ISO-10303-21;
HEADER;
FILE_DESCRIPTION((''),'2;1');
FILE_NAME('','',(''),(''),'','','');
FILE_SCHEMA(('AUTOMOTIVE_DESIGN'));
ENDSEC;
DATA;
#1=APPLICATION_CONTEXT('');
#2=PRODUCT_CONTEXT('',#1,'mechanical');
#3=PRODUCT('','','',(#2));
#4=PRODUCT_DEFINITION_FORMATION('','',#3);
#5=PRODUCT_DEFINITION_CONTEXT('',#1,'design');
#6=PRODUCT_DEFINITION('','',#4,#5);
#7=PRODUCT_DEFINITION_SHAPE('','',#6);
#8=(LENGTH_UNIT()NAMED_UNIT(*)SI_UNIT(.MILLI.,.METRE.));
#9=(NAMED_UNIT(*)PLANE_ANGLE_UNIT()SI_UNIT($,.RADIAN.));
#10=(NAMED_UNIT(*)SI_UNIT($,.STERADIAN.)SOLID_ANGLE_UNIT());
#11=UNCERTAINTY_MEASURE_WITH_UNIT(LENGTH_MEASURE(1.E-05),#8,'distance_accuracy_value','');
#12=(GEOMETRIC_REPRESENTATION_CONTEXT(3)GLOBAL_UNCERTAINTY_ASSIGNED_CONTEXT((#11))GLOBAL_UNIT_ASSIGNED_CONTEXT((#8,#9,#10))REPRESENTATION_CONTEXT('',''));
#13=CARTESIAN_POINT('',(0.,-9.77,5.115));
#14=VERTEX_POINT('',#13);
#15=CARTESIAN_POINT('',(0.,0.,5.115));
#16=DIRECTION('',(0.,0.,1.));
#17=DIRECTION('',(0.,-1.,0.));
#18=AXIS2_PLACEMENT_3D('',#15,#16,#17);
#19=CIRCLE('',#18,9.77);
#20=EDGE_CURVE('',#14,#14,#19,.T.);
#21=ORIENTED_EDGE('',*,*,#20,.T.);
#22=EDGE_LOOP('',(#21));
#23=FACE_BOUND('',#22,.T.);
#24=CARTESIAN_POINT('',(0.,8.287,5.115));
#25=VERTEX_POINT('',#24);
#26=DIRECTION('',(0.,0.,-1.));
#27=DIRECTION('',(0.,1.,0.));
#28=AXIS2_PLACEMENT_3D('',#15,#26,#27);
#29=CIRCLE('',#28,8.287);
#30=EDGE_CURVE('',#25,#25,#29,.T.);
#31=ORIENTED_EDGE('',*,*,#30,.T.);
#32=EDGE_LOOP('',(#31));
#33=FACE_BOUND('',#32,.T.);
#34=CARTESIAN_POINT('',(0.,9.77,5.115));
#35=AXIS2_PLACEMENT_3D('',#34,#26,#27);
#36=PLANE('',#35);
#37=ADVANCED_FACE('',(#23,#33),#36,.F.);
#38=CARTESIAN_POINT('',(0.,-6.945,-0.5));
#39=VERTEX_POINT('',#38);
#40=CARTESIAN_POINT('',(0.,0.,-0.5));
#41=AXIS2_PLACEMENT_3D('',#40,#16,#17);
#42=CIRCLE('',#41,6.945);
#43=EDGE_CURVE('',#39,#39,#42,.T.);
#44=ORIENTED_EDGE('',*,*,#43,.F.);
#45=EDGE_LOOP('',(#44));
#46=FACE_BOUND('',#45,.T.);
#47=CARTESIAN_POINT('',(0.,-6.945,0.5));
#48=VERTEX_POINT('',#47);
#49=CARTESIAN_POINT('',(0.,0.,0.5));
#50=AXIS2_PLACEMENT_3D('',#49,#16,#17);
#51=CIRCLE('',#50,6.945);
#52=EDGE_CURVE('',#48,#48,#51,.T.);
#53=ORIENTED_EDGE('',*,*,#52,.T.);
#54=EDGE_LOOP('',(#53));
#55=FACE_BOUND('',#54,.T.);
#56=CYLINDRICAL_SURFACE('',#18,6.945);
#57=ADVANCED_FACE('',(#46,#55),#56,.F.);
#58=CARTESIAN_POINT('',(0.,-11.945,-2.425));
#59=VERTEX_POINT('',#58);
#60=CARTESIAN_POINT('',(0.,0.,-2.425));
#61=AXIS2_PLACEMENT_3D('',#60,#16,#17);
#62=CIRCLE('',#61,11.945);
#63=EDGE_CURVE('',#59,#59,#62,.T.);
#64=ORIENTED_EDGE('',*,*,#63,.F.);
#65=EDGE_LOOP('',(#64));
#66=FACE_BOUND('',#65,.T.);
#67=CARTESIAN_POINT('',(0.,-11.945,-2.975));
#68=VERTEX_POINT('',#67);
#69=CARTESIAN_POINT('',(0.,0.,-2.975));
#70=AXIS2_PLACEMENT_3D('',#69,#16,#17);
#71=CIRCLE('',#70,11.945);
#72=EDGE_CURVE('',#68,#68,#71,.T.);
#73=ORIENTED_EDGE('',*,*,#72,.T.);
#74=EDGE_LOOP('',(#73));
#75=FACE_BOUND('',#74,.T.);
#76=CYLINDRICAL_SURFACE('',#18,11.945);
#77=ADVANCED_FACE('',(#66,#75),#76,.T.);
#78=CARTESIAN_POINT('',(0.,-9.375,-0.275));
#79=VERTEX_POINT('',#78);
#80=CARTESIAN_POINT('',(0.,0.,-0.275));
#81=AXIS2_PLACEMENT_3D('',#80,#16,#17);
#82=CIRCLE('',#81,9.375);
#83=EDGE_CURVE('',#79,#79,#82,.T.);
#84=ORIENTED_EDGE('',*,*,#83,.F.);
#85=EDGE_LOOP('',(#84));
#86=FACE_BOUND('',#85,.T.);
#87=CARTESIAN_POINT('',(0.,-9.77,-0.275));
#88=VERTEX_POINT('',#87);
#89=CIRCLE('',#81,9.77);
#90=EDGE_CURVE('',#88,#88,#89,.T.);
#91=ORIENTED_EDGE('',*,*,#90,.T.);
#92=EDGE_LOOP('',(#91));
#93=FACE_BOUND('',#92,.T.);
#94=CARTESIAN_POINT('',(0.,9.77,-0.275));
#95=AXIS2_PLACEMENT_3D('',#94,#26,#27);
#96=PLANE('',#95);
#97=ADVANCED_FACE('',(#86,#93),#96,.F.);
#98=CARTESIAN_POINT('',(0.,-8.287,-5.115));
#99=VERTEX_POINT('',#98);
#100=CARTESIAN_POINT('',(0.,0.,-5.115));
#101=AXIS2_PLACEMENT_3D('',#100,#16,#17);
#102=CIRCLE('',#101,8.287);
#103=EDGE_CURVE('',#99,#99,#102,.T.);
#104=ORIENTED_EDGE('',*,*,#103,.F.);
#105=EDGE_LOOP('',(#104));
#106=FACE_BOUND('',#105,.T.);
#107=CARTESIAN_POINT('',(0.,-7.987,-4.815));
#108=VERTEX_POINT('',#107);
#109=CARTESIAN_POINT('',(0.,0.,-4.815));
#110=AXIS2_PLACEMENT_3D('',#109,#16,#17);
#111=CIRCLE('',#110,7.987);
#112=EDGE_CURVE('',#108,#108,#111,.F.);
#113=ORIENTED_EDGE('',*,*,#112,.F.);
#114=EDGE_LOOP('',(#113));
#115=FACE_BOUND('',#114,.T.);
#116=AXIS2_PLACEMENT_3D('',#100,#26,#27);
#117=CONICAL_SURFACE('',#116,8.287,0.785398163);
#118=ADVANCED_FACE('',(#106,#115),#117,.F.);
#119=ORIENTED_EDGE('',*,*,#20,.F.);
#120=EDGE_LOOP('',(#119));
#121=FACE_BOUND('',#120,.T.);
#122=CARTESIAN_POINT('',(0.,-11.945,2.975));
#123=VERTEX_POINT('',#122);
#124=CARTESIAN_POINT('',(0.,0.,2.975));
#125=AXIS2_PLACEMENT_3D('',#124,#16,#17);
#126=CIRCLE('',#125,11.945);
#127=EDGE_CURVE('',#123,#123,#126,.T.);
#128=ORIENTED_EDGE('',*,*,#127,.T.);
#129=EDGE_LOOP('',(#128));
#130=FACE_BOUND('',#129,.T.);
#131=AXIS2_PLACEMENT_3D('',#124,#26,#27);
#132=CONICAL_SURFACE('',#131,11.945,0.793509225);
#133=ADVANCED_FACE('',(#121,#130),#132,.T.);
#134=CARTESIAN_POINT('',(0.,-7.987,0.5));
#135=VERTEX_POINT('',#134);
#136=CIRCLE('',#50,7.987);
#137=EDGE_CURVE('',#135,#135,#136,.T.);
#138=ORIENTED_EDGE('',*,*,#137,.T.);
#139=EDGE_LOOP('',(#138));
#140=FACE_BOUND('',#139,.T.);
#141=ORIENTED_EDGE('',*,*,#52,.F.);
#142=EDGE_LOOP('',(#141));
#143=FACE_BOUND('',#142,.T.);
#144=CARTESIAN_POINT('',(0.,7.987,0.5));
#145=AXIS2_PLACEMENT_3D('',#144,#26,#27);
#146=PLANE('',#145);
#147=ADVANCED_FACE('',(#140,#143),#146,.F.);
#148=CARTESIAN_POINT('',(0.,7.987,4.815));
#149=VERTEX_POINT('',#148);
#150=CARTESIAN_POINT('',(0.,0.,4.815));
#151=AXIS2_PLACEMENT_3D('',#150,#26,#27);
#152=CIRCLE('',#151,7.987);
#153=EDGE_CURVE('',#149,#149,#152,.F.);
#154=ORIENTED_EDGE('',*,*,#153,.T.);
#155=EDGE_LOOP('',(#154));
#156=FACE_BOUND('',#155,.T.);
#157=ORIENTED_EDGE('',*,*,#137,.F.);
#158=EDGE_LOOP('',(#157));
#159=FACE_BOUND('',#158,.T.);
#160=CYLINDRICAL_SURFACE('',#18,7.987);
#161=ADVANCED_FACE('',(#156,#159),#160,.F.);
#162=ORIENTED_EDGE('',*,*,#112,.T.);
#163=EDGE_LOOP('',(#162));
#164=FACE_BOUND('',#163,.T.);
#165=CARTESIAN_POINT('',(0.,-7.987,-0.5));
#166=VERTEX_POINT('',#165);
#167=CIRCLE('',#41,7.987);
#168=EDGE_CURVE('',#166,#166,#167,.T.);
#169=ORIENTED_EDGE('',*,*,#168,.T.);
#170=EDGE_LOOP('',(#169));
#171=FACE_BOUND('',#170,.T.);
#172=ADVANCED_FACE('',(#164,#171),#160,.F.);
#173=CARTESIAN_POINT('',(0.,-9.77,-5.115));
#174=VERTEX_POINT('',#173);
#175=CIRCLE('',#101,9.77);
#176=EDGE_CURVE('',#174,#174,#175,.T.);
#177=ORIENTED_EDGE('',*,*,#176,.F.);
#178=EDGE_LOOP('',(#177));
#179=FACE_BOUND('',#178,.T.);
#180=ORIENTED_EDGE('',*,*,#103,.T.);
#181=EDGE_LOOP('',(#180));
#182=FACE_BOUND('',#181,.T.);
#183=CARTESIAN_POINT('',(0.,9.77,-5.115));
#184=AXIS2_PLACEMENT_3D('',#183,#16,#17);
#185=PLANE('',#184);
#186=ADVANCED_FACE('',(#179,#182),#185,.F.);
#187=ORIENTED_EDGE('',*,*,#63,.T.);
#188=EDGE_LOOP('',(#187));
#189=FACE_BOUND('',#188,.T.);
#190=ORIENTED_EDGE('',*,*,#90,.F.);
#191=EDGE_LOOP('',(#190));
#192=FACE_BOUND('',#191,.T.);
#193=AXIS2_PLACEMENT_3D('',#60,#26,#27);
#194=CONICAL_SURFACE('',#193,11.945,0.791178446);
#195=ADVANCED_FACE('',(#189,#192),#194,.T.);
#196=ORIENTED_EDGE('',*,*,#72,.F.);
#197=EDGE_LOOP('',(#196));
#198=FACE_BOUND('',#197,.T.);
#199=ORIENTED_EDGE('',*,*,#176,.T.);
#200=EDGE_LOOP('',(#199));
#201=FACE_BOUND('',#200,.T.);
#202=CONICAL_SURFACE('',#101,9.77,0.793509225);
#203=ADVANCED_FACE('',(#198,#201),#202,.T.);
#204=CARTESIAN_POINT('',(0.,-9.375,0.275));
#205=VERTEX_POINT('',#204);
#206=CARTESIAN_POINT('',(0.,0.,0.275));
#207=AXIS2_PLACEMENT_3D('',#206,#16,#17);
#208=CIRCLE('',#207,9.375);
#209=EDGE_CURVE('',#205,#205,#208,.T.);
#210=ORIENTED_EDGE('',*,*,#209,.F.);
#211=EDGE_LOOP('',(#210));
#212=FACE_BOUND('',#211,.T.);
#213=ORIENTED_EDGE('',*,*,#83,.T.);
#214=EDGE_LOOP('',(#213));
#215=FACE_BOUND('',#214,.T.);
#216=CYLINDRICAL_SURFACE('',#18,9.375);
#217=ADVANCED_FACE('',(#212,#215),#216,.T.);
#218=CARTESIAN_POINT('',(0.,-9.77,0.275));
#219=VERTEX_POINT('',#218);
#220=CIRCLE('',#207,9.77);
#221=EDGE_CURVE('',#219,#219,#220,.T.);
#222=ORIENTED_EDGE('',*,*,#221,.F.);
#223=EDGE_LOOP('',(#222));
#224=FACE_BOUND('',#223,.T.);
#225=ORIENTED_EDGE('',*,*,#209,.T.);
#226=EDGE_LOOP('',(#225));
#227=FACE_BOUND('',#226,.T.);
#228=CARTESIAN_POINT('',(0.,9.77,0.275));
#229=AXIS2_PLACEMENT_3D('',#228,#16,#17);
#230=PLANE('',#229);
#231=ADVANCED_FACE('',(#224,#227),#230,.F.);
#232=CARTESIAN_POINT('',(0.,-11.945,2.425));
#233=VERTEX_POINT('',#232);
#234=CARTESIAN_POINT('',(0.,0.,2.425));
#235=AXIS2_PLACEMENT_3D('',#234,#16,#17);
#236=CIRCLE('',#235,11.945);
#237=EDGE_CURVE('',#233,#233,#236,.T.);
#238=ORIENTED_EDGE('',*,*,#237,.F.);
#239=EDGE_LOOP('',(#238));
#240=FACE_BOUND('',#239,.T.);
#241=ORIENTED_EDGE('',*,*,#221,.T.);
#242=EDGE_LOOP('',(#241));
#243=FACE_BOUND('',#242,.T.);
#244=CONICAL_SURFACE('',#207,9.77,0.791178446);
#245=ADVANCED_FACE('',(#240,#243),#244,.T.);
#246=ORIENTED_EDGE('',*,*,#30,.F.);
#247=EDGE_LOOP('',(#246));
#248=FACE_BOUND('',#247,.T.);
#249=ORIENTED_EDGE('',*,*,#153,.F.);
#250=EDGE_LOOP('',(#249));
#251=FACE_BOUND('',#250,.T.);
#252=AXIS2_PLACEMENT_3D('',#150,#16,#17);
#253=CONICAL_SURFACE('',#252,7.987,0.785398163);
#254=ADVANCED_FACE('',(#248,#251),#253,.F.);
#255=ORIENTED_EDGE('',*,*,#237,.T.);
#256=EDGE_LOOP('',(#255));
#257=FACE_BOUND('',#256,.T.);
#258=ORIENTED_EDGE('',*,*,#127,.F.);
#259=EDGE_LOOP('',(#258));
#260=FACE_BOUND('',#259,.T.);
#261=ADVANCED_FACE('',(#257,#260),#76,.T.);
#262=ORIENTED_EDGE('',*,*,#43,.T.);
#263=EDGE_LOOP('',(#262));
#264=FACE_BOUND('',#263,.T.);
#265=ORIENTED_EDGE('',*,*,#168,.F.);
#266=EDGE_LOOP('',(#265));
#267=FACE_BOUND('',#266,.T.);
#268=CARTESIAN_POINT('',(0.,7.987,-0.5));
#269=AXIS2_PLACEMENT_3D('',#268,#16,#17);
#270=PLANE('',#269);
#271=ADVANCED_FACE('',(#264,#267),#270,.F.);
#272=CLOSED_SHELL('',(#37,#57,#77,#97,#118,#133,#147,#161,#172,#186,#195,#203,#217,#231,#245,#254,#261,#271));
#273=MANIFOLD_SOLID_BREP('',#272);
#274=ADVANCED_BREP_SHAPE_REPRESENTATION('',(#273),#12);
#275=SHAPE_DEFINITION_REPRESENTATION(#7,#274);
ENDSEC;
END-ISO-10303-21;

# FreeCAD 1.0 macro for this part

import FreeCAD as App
import Part
import Sketcher

V = App.Vector
Q = App.Units.Quantity


def edges_at(feature, points):
    """Names of the edges that pass closest to the given points."""
    edges = feature.Shape.Edges
    near = lambda p: min(range(len(edges)), key=lambda i: edges[i].distToShape(Part.Vertex(*p))[0])
    return sorted({f"Edge{near(p) + 1}" for p in points})

doc = App.newDocument("Part")
params = doc.addObject("Spreadsheet::Sheet", "Params")
for row, (alias, value) in enumerate([
    ("sketch1_height", "1 mm"),
    ("sketch1_height2", "0.55 mm"),
    ("revolution_angle", "360 deg"),
    ("chamfer_size", "0.3 mm"),
], start=1):
    params.set(f"A{row}", alias)
    params.set(f"B{row}", "=" + value)
    params.setAlias(f"B{row}", alias)

body = doc.addObject("PartDesign::Body", "Body")

# Sketch on YZ plane
sketch1 = body.newObject("Sketcher::SketchObject", "Sketch")
sketch1.AttachmentSupport = (doc.getObject("YZ_Plane"), [""])
sketch1.MapMode = "FlatFace"
sketch1.addGeometry([
    Part.LineSegment(V(11.945, 2.425, 0), V(11.945, 2.975, 0)),  # 0
    Part.LineSegment(V(11.945, 2.975, 0), V(9.77, 5.115, 0)),  # 1
    Part.LineSegment(V(9.77, 5.115, 0), V(7.987, 5.115, 0)),  # 2
    Part.LineSegment(V(7.987, 5.115, 0), V(7.987, 0.5, 0)),  # 3
    Part.LineSegment(V(7.987, 0.5, 0), V(6.945, 0.5, 0)),  # 4
    Part.LineSegment(V(6.945, 0.5, 0), V(6.945, -0.5, 0)),  # 5
    Part.LineSegment(V(6.945, -0.5, 0), V(7.987, -0.5, 0)),  # 6
    Part.LineSegment(V(7.987, -0.5, 0), V(7.987, -5.115, 0)),  # 7
    Part.LineSegment(V(7.987, -5.115, 0), V(9.77, -5.115, 0)),  # 8
    Part.LineSegment(V(9.77, -5.115, 0), V(11.945, -2.975, 0)),  # 9
    Part.LineSegment(V(11.945, -2.975, 0), V(11.945, -2.425, 0)),  # 10
    Part.LineSegment(V(11.945, -2.425, 0), V(9.77, -0.275, 0)),  # 11
    Part.LineSegment(V(9.77, -0.275, 0), V(9.375, -0.275, 0)),  # 12
    Part.LineSegment(V(9.375, -0.275, 0), V(9.375, 0.275, 0)),  # 13
    Part.LineSegment(V(9.375, 0.275, 0), V(9.77, 0.275, 0)),  # 14
    Part.LineSegment(V(9.77, 0.275, 0), V(11.945, 2.425, 0)),  # 15
], False)
sketch1.addConstraint([
    Sketcher.Constraint("Coincident", 0, 2, 1, 1),
    Sketcher.Constraint("Coincident", 1, 2, 2, 1),
    Sketcher.Constraint("Coincident", 2, 2, 3, 1),
    Sketcher.Constraint("Coincident", 3, 2, 4, 1),
    Sketcher.Constraint("Coincident", 4, 2, 5, 1),
    Sketcher.Constraint("Coincident", 5, 2, 6, 1),
    Sketcher.Constraint("Coincident", 6, 2, 7, 1),
    Sketcher.Constraint("Coincident", 7, 2, 8, 1),
    Sketcher.Constraint("Coincident", 8, 2, 9, 1),
    Sketcher.Constraint("Coincident", 9, 2, 10, 1),
    Sketcher.Constraint("Coincident", 10, 2, 11, 1),
    Sketcher.Constraint("Coincident", 11, 2, 12, 1),
    Sketcher.Constraint("Coincident", 12, 2, 13, 1),
    Sketcher.Constraint("Coincident", 13, 2, 14, 1),
    Sketcher.Constraint("Coincident", 14, 2, 15, 1),
    Sketcher.Constraint("Coincident", 15, 2, 0, 1),
    Sketcher.Constraint("Vertical", 0),
    Sketcher.Constraint("Horizontal", 2),
    Sketcher.Constraint("Vertical", 3),
    Sketcher.Constraint("Horizontal", 4),
    Sketcher.Constraint("Vertical", 5),
    Sketcher.Constraint("Horizontal", 6),
    Sketcher.Constraint("Vertical", 7),
    Sketcher.Constraint("Horizontal", 8),
    Sketcher.Constraint("Vertical", 10),
    Sketcher.Constraint("Horizontal", 12),
    Sketcher.Constraint("Vertical", 13),
    Sketcher.Constraint("Horizontal", 14),
    Sketcher.Constraint("Symmetric", 3, 2, 6, 2, -1),
    Sketcher.Constraint("Symmetric", 1, 2, 8, 2, -1),
    Sketcher.Constraint("Symmetric", 0, 2, 9, 2, -1),
    Sketcher.Constraint("Symmetric", 11, 2, 14, 2, -1),
    Sketcher.Constraint("Vertical", 8, 2, 11, 2),
    Sketcher.Constraint("Equal", 0, 10),
    Sketcher.Constraint("Equal", 10, 13),
    Sketcher.Constraint("DistanceY", 5, 2, 5, 1, Q("1 mm")),
    Sketcher.Constraint("DistanceX", 4, 2, 0, 2, Q("5 mm")),
    Sketcher.Constraint("DistanceY", 0, 1, 0, 2, Q("0.55 mm")),
    Sketcher.Constraint("DistanceY", 11, 2, 15, 2, Q("2.7 mm")),
    Sketcher.Constraint("DistanceX", 2, 2, 2, 1, Q("1.783 mm")),
    Sketcher.Constraint("DistanceX", 4, 2, 4, 1, Q("1.042 mm")),
    Sketcher.Constraint("DistanceX", 12, 2, 12, 1, Q("0.395 mm")),
    Sketcher.Constraint("DistanceY", 3, 2, 3, 1, Q("4.615 mm")),
    Sketcher.Constraint("DistanceX", -1, 1, 1, 2, Q("9.77 mm")),
])
sketch1.setExpression("Constraints[35]", "Params.sketch1_height")
sketch1.setExpression("Constraints[37]", "Params.sketch1_height2")
revolution = body.newObject("PartDesign::Revolution", "Revolution")
revolution.Profile = sketch1
revolution.ReferenceAxis = (sketch1, ["V_Axis"])
revolution.setExpression("Angle", "Params.revolution_angle")
doc.recompute()

chamfer = body.newObject("PartDesign::Chamfer", "Chamfer")
chamfer.Base = (revolution, edges_at(revolution, [(0, -7.987, -5.115), (0, -7.987, 5.115)]))
chamfer.setExpression("Size", "Params.chamfer_size")

doc.recompute()
